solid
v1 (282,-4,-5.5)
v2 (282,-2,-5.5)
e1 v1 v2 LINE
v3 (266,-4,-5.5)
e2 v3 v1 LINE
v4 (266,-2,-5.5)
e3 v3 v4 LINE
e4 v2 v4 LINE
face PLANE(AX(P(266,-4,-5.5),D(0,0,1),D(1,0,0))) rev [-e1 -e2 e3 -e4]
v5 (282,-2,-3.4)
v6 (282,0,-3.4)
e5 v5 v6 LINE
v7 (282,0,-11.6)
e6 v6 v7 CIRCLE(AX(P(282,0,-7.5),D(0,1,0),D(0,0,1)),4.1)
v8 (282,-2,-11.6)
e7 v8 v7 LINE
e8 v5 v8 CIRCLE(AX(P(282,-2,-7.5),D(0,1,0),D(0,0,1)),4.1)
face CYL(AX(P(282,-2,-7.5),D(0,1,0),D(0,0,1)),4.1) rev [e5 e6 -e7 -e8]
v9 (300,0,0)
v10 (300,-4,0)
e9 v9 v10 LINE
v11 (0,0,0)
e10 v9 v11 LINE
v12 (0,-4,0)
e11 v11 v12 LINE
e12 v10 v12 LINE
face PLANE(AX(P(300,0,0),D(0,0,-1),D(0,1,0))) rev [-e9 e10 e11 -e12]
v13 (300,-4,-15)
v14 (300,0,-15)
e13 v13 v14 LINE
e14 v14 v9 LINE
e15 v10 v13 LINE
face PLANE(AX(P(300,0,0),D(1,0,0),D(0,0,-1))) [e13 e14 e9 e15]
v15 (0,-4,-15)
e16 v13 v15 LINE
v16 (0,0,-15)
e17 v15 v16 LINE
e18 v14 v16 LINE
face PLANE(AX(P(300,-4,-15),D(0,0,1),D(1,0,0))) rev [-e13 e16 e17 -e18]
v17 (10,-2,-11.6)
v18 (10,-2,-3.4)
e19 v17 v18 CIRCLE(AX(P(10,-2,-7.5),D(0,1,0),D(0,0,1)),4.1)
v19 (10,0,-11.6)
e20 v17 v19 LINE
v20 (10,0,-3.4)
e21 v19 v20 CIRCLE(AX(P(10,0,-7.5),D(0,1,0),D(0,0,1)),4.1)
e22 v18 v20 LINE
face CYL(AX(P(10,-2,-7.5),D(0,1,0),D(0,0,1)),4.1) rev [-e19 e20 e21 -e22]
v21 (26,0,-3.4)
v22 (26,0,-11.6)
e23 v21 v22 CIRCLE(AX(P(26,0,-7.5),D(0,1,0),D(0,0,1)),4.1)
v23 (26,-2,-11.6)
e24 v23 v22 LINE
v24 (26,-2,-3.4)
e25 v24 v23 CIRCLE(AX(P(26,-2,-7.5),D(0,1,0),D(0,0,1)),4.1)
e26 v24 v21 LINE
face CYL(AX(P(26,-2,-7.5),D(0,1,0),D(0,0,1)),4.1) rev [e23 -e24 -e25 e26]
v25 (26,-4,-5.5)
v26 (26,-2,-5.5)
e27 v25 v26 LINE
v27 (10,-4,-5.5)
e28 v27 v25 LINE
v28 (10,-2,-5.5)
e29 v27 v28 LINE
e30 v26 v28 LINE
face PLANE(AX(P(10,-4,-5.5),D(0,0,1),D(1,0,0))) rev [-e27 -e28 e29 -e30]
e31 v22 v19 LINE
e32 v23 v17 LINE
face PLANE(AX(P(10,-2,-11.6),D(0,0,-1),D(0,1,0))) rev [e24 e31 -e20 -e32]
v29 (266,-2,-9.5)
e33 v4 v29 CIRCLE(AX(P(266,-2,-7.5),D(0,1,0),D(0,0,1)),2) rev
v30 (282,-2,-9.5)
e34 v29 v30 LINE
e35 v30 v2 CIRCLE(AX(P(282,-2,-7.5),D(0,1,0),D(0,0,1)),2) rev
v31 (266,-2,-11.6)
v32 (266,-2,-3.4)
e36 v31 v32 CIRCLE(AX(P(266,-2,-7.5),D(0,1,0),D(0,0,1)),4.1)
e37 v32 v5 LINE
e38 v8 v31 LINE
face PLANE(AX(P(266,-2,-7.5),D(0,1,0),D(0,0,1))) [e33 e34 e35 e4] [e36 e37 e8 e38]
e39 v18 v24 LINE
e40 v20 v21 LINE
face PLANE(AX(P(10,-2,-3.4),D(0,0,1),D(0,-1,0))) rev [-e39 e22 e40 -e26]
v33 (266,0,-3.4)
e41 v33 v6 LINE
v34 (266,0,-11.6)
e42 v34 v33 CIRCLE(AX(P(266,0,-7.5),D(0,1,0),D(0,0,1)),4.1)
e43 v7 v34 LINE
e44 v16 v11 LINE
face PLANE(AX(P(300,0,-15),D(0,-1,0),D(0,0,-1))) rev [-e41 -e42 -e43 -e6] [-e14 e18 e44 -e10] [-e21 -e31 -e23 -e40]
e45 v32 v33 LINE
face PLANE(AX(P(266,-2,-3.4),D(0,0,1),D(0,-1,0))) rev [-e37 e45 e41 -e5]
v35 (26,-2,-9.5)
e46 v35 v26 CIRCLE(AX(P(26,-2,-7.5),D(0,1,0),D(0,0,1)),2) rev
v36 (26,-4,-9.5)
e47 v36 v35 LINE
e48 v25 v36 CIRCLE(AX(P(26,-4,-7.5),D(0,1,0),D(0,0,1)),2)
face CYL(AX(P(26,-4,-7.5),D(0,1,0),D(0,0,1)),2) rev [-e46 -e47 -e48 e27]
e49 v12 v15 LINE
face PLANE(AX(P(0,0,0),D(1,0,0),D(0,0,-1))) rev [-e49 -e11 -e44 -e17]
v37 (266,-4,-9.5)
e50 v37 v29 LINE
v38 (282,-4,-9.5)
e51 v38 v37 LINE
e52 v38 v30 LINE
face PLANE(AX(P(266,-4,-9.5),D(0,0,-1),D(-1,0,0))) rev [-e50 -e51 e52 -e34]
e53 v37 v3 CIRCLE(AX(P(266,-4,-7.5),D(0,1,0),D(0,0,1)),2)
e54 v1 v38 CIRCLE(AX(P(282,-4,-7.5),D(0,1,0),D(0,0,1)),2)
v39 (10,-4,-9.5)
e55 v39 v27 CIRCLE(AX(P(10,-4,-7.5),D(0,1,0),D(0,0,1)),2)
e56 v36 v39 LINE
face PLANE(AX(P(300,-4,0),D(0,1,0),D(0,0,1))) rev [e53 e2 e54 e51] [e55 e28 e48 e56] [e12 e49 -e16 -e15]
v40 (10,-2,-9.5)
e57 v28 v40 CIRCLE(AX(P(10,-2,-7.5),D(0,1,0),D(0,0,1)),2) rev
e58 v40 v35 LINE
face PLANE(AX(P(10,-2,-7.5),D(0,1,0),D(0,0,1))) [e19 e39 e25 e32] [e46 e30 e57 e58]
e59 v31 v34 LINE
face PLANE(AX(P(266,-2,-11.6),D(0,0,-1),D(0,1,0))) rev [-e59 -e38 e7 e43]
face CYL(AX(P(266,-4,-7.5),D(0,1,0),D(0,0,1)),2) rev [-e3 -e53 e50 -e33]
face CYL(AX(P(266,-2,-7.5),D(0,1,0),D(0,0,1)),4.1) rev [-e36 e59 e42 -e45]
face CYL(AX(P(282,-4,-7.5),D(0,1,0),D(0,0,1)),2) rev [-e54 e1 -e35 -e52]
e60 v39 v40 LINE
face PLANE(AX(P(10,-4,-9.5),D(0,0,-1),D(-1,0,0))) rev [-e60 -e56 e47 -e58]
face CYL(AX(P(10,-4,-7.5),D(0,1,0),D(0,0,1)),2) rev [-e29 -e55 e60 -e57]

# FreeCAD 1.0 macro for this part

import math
import FreeCAD as App
import Part
import Sketcher
from FreeCAD import Vector
Q = App.Units.Quantity

doc = App.newDocument("Part")
params = doc.addObject("Spreadsheet::Sheet", "Params")
for row, (alias, value) in enumerate([
    ("sketch1_width", "4 mm"),
    ("sketch1_height", "15 mm"),
    ("pad1_length", "300 mm"),
    ("sketch2_radius", "2 mm"),
    ("sketch2_width", "16 mm"),
    ("sketch3_radius", "4.1 mm"),
    ("sketch3_width", "16 mm"),
    ("pocket2_length", "2 mm"),
], start=1):
    params.set(f"A{row}", alias)
    params.set(f"B{row}", "=" + value)
    params.setAlias(f"B{row}", alias)

body = doc.addObject("PartDesign::Body", "Body")

# Sketch on YZ plane
sketch1 = body.newObject("Sketcher::SketchObject", "Sketch")
sketch1.AttachmentSupport = (doc.getObject("YZ_Plane"), [""])
sketch1.MapMode = "FlatFace"
sketch1.addGeometry(Part.LineSegment(Vector(0, 0, 0), Vector(-4, 0, 0)), False)
sketch1.addGeometry(Part.LineSegment(Vector(-4, 0, 0), Vector(-4, -15, 0)), False)
sketch1.addGeometry(Part.LineSegment(Vector(-4, -15, 0), Vector(0, -15, 0)), False)
sketch1.addGeometry(Part.LineSegment(Vector(0, -15, 0), Vector(0, 0, 0)), False)
sketch1.addConstraint(Sketcher.Constraint("Coincident", 0, 2, 1, 1))
sketch1.addConstraint(Sketcher.Constraint("Coincident", 1, 2, 2, 1))
sketch1.addConstraint(Sketcher.Constraint("Coincident", 2, 2, 3, 1))
sketch1.addConstraint(Sketcher.Constraint("Coincident", 3, 2, 0, 1))
sketch1.addConstraint(Sketcher.Constraint("Horizontal", 0))
sketch1.addConstraint(Sketcher.Constraint("Vertical", 1))
sketch1.addConstraint(Sketcher.Constraint("Horizontal", 2))
sketch1.addConstraint(Sketcher.Constraint("Vertical", 3))
sketch1.addConstraint(Sketcher.Constraint("Coincident", 3, 2, -1, 1))
sketch1.addConstraint(Sketcher.Constraint("DistanceX", 0, 2, 0, 1, Q("4 mm")))
sketch1.addConstraint(Sketcher.Constraint("DistanceY", 1, 2, 1, 1, Q("15 mm")))
sketch1.setExpression("Constraints[9]", "Params.sketch1_width")
sketch1.setExpression("Constraints[10]", "Params.sketch1_height")
pad1 = body.newObject("PartDesign::Pad", "Pad")
pad1.Profile = sketch1
pad1.setExpression("Length", "Params.pad1_length")

# Sketch on XZ plane
sketch2 = body.newObject("Sketcher::SketchObject", "Sketch001")
sketch2.AttachmentSupport = (doc.getObject("XZ_Plane"), [""])
sketch2.MapMode = "FlatFace"
sketch2.addGeometry(Part.LineSegment(Vector(26, -9.5, 0), Vector(10, -9.5, 0)), False)
sketch2.addGeometry(Part.ArcOfCircle(Part.Circle(Vector(10, -7.5, 0), Vector(0, 0, 1), 2), math.radians(90), math.radians(270)), False)
sketch2.addGeometry(Part.LineSegment(Vector(10, -5.5, 0), Vector(26, -5.5, 0)), False)
sketch2.addGeometry(Part.ArcOfCircle(Part.Circle(Vector(26, -7.5, 0), Vector(0, 0, 1), 2), math.radians(-90), math.radians(90)), False)
sketch2.addGeometry(Part.LineSegment(Vector(282, -9.5, 0), Vector(266, -9.5, 0)), False)
sketch2.addGeometry(Part.ArcOfCircle(Part.Circle(Vector(266, -7.5, 0), Vector(0, 0, 1), 2), math.radians(90), math.radians(270)), False)
sketch2.addGeometry(Part.LineSegment(Vector(266, -5.5, 0), Vector(282, -5.5, 0)), False)
sketch2.addGeometry(Part.ArcOfCircle(Part.Circle(Vector(282, -7.5, 0), Vector(0, 0, 1), 2), math.radians(-90), math.radians(90)), False)
sketch2.addConstraint(Sketcher.Constraint("Tangent", 0, 2, 1, 2))
sketch2.addConstraint(Sketcher.Constraint("Tangent", 1, 1, 2, 1))
sketch2.addConstraint(Sketcher.Constraint("Tangent", 2, 2, 3, 2))
sketch2.addConstraint(Sketcher.Constraint("Tangent", 3, 1, 0, 1))
sketch2.addConstraint(Sketcher.Constraint("Tangent", 4, 2, 5, 2))
sketch2.addConstraint(Sketcher.Constraint("Tangent", 5, 1, 6, 1))
sketch2.addConstraint(Sketcher.Constraint("Tangent", 6, 2, 7, 2))
sketch2.addConstraint(Sketcher.Constraint("Tangent", 7, 1, 4, 1))
sketch2.addConstraint(Sketcher.Constraint("Horizontal", 0))
sketch2.addConstraint(Sketcher.Constraint("Horizontal", 2))
sketch2.addConstraint(Sketcher.Constraint("Horizontal", 4))
sketch2.addConstraint(Sketcher.Constraint("Horizontal", 6))
sketch2.addConstraint(Sketcher.Constraint("Equal", 3, 5))
sketch2.addConstraint(Sketcher.Constraint("Horizontal", 3, 3, 5, 3))
sketch2.addConstraint(Sketcher.Constraint("Equal", 2, 4))
sketch2.addConstraint(Sketcher.Constraint("Radius", 1, Q("2 mm")))
sketch2.addConstraint(Sketcher.Constraint("DistanceX", 0, 2, 0, 1, Q("16 mm")))
sketch2.addConstraint(Sketcher.Constraint("DistanceX", -1, 1, 1, 3, Q("10 mm")))
sketch2.addConstraint(Sketcher.Constraint("DistanceX", -1, 1, 5, 3, Q("266 mm")))
sketch2.addConstraint(Sketcher.Constraint("DistanceY", 1, 3, -1, 1, Q("7.5 mm")))
sketch2.setExpression("Constraints[15]", "Params.sketch2_radius")
sketch2.setExpression("Constraints[16]", "Params.sketch2_width")
pocket1 = body.newObject("PartDesign::Pocket", "Pocket")
pocket1.Profile = sketch2
pocket1.Type = "ThroughAll"
pocket1.Reversed = True

# Sketch on XZ plane
sketch3 = body.newObject("Sketcher::SketchObject", "Sketch002")
sketch3.AttachmentSupport = (doc.getObject("XZ_Plane"), [""])
sketch3.MapMode = "FlatFace"
sketch3.addGeometry(Part.LineSegment(Vector(26, -11.6, 0), Vector(10, -11.6, 0)), False)
sketch3.addGeometry(Part.ArcOfCircle(Part.Circle(Vector(10, -7.5, 0), Vector(0, 0, 1), 4.1), math.radians(90), math.radians(270)), False)
sketch3.addGeometry(Part.LineSegment(Vector(10, -3.4, 0), Vector(26, -3.4, 0)), False)
sketch3.addGeometry(Part.ArcOfCircle(Part.Circle(Vector(26, -7.5, 0), Vector(0, 0, 1), 4.1), math.radians(-90), math.radians(90)), False)
sketch3.addGeometry(Part.LineSegment(Vector(282, -11.6, 0), Vector(266, -11.6, 0)), False)
sketch3.addGeometry(Part.ArcOfCircle(Part.Circle(Vector(266, -7.5, 0), Vector(0, 0, 1), 4.1), math.radians(90), math.radians(270)), False)
sketch3.addGeometry(Part.LineSegment(Vector(266, -3.4, 0), Vector(282, -3.4, 0)), False)
sketch3.addGeometry(Part.ArcOfCircle(Part.Circle(Vector(282, -7.5, 0), Vector(0, 0, 1), 4.1), math.radians(-90), math.radians(90)), False)
sketch3.addConstraint(Sketcher.Constraint("Tangent", 0, 2, 1, 2))
sketch3.addConstraint(Sketcher.Constraint("Tangent", 1, 1, 2, 1))
sketch3.addConstraint(Sketcher.Constraint("Tangent", 2, 2, 3, 2))
sketch3.addConstraint(Sketcher.Constraint("Tangent", 3, 1, 0, 1))
sketch3.addConstraint(Sketcher.Constraint("Tangent", 4, 2, 5, 2))
sketch3.addConstraint(Sketcher.Constraint("Tangent", 5, 1, 6, 1))
sketch3.addConstraint(Sketcher.Constraint("Tangent", 6, 2, 7, 2))
sketch3.addConstraint(Sketcher.Constraint("Tangent", 7, 1, 4, 1))
sketch3.addConstraint(Sketcher.Constraint("Horizontal", 0))
sketch3.addConstraint(Sketcher.Constraint("Horizontal", 2))
sketch3.addConstraint(Sketcher.Constraint("Horizontal", 4))
sketch3.addConstraint(Sketcher.Constraint("Horizontal", 6))
sketch3.addConstraint(Sketcher.Constraint("Equal", 3, 5))
sketch3.addConstraint(Sketcher.Constraint("Horizontal", 3, 3, 5, 3))
sketch3.addConstraint(Sketcher.Constraint("Equal", 2, 4))
sketch3.addConstraint(Sketcher.Constraint("Radius", 1, Q("4.1 mm")))
sketch3.addConstraint(Sketcher.Constraint("DistanceX", 0, 2, 0, 1, Q("16 mm")))
sketch3.addConstraint(Sketcher.Constraint("DistanceX", -1, 1, 1, 3, Q("10 mm")))
sketch3.addConstraint(Sketcher.Constraint("DistanceX", -1, 1, 5, 3, Q("266 mm")))
sketch3.addConstraint(Sketcher.Constraint("DistanceY", 1, 3, -1, 1, Q("7.5 mm")))
sketch3.setExpression("Constraints[15]", "Params.sketch3_radius")
sketch3.setExpression("Constraints[16]", "Params.sketch3_width")
pocket2 = body.newObject("PartDesign::Pocket", "Pocket001")
pocket2.Profile = sketch3
pocket2.setExpression("Length", "Params.pocket2_length")
pocket2.Reversed = True

doc.recompute()
